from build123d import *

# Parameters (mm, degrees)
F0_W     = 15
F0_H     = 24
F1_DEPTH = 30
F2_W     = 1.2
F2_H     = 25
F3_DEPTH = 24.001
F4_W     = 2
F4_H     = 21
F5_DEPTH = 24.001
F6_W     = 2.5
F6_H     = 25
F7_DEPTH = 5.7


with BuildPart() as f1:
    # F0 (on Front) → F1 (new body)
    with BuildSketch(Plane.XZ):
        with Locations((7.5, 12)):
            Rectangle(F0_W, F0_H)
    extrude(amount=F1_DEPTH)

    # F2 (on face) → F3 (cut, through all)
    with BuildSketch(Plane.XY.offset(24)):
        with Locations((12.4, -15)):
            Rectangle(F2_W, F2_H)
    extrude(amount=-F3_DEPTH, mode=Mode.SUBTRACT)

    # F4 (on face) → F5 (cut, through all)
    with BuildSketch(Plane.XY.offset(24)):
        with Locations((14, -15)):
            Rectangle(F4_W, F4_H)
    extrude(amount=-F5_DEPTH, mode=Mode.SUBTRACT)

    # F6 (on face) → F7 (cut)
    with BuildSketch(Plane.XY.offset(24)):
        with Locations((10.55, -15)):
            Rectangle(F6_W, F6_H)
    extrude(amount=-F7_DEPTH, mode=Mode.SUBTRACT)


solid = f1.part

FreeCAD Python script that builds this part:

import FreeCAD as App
import Part
import Sketcher
Q = App.Units.Quantity


def add_polygon(sketch, points):
    """Adds a closed chain of lines whose ends are joined by coincident constraints."""
    first, n = sketch.GeometryCount, len(points)
    for a, b in zip(points, points[1:] + points[:1]):
        sketch.addGeometry(Part.LineSegment(App.Vector(*a, 0), App.Vector(*b, 0)), False)
    for i in range(n):
        sketch.addConstraint(Sketcher.Constraint("Coincident", first + i, 2, first + (i + 1) % n, 1))

doc = App.newDocument("Part")
body = doc.addObject("PartDesign::Body", "Body")

sketch1 = body.newObject("Sketcher::SketchObject", "Sketch")
sketch1.AttachmentSupport = (doc.getObject("XZ_Plane"), [""])
sketch1.MapMode = "FlatFace"
add_polygon(sketch1, [(0, 24), (0, 0), (15, 0), (15, 24)])
sketch1.addConstraint([
    Sketcher.Constraint("Vertical", 0),
    Sketcher.Constraint("Horizontal", 1),
    Sketcher.Constraint("Vertical", 2),
    Sketcher.Constraint("Horizontal", 3),
    Sketcher.Constraint("Coincident", 0, 2, -1, 1),
    Sketcher.Constraint("DistanceX", 1, 1, 1, 2, Q("15 mm")),
    Sketcher.Constraint("DistanceY", 0, 2, 0, 1, Q("24 mm")),
])
pad1 = body.newObject("PartDesign::Pad", "Pad")
pad1.Profile = sketch1
pad1.Length = 30

sketch2 = body.newObject("Sketcher::SketchObject", "Sketch001")
sketch2.AttachmentSupport = (doc.getObject("XY_Plane"), [""])
sketch2.MapMode = "FlatFace"
sketch2.AttachmentOffset = App.Placement(App.Vector(0, 0, 24), App.Rotation())
add_polygon(sketch2, [(11.8, -2.5), (11.8, -27.5), (13, -27.5), (13, -2.5)])
sketch2.addConstraint([
    Sketcher.Constraint("Vertical", 0),
    Sketcher.Constraint("Horizontal", 1),
    Sketcher.Constraint("Vertical", 2),
    Sketcher.Constraint("Horizontal", 3),
    Sketcher.Constraint("DistanceY", 0, 2, 0, 1, Q("25 mm")),
    Sketcher.Constraint("DistanceX", 1, 1, 1, 2, Q("1.2 mm")),
    Sketcher.Constraint("DistanceX", -1, 1, 1, 2, Q("13 mm")),
    Sketcher.Constraint("DistanceY", 0, 2, -1, 1, Q("27.5 mm")),
])
pocket1 = body.newObject("PartDesign::Pocket", "Pocket")
pocket1.Profile = sketch2
pocket1.Type = "ThroughAll"

sketch3 = body.newObject("Sketcher::SketchObject", "Sketch002")
sketch3.AttachmentSupport = (doc.getObject("XY_Plane"), [""])
sketch3.MapMode = "FlatFace"
sketch3.AttachmentOffset = App.Placement(App.Vector(0, 0, 24), App.Rotation())
add_polygon(sketch3, [(13, -4.5), (13, -25.5), (15, -25.5), (15, -4.5)])
sketch3.addConstraint([
    Sketcher.Constraint("Vertical", 0),
    Sketcher.Constraint("Horizontal", 1),
    Sketcher.Constraint("Vertical", 2),
    Sketcher.Constraint("Horizontal", 3),
    Sketcher.Constraint("DistanceX", 1, 1, 1, 2, Q("2 mm")),
    Sketcher.Constraint("DistanceY", 0, 2, 0, 1, Q("21 mm")),
    Sketcher.Constraint("DistanceX", -1, 1, 0, 2, Q("13 mm")),
    Sketcher.Constraint("DistanceY", 0, 2, -1, 1, Q("25.5 mm")),
])
pocket2 = body.newObject("PartDesign::Pocket", "Pocket001")
pocket2.Profile = sketch3
pocket2.Type = "ThroughAll"

sketch4 = body.newObject("Sketcher::SketchObject", "Sketch003")
sketch4.AttachmentSupport = (doc.getObject("XY_Plane"), [""])
sketch4.MapMode = "FlatFace"
sketch4.AttachmentOffset = App.Placement(App.Vector(0, 0, 24), App.Rotation())
add_polygon(sketch4, [(9.3, -2.5), (9.3, -27.5), (11.8, -27.5), (11.8, -2.5)])
sketch4.addConstraint([
    Sketcher.Constraint("Vertical", 0),
    Sketcher.Constraint("Horizontal", 1),
    Sketcher.Constraint("Vertical", 2),
    Sketcher.Constraint("Horizontal", 3),
    Sketcher.Constraint("DistanceY", 0, 2, 0, 1, Q("25 mm")),
    Sketcher.Constraint("DistanceX", 1, 1, 1, 2, Q("2.5 mm")),
    Sketcher.Constraint("DistanceX", -1, 1, 0, 2, Q("9.3 mm")),
    Sketcher.Constraint("DistanceY", 0, 2, -1, 1, Q("27.5 mm")),
])
pocket3 = body.newObject("PartDesign::Pocket", "Pocket002")
pocket3.Profile = sketch4
pocket3.Length = 5.7

doc.recompute()
